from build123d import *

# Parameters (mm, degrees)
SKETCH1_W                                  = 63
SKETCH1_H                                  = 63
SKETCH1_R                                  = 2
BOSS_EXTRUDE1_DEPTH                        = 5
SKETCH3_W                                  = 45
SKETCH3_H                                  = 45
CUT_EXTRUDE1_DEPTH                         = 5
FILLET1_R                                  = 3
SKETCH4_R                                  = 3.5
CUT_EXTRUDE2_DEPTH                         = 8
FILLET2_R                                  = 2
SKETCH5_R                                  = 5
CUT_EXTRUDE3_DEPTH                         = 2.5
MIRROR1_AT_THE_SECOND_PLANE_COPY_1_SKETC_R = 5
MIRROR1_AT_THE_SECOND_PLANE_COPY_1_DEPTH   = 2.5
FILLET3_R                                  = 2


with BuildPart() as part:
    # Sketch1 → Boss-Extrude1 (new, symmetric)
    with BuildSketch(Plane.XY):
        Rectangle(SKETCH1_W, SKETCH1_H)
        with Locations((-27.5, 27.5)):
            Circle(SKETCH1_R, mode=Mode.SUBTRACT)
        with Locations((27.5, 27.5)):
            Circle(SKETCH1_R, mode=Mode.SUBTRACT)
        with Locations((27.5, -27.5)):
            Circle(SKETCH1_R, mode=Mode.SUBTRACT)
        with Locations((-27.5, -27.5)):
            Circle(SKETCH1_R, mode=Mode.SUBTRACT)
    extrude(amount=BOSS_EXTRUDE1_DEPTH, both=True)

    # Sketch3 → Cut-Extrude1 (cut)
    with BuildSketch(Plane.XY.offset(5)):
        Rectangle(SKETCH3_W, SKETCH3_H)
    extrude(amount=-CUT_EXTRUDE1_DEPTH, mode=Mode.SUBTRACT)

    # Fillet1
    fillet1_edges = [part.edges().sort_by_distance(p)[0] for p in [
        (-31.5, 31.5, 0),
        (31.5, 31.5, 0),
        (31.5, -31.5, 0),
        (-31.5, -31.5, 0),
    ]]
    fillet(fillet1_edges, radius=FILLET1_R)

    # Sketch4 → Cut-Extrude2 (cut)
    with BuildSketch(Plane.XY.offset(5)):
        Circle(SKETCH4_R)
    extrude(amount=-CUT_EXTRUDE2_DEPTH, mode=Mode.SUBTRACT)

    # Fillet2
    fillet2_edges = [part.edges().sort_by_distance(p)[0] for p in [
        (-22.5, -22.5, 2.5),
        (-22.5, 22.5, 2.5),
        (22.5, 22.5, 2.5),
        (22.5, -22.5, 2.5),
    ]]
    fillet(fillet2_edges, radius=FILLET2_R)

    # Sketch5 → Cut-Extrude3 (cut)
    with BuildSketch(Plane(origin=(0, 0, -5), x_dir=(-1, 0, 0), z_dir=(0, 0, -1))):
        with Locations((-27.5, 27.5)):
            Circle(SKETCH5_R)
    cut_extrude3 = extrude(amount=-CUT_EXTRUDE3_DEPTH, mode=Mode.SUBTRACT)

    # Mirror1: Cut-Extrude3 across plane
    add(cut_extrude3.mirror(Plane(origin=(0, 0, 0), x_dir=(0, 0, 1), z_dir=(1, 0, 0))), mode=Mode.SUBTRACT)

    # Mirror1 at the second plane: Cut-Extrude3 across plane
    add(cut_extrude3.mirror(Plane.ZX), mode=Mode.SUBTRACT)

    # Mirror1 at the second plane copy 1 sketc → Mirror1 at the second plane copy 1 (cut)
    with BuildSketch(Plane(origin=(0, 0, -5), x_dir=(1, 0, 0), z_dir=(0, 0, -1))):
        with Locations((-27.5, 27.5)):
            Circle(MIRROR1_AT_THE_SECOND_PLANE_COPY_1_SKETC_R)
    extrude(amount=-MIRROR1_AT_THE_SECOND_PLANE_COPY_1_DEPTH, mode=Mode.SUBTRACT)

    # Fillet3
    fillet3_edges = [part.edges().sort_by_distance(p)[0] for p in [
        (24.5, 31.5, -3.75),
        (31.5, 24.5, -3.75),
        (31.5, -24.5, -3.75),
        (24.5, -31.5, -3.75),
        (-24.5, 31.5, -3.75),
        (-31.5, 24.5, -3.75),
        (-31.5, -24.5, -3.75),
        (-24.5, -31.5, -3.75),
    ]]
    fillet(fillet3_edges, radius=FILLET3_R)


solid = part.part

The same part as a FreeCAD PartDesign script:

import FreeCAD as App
import Part
import Sketcher

V = App.Vector
Q = App.Units.Quantity


def edges_at(feature, points):
    """Names of the edges that pass closest to the given points."""
    edges = feature.Shape.Edges
    near = lambda p: min(range(len(edges)), key=lambda i: edges[i].distToShape(Part.Vertex(*p))[0])
    return sorted({f"Edge{near(p) + 1}" for p in points})


def add_polygon(sketch, points):
    """Adds a closed chain of lines whose ends are joined by coincident constraints."""
    first, n = sketch.GeometryCount, len(points)
    for a, b in zip(points, points[1:] + points[:1]):
        sketch.addGeometry(Part.LineSegment(App.Vector(*a, 0), App.Vector(*b, 0)), False)
    for i in range(n):
        sketch.addConstraint(Sketcher.Constraint("Coincident", first + i, 2, first + (i + 1) % n, 1))

doc = App.newDocument("Part")
body = doc.addObject("PartDesign::Body", "Body")

# Sketch on XY plane
sketch1 = body.newObject("Sketcher::SketchObject", "Sketch")
sketch1.AttachmentSupport = (doc.getObject("XY_Plane"), [""])
sketch1.MapMode = "FlatFace"
add_polygon(sketch1, [(-31.5, 31.5), (-31.5, -31.5), (31.5, -31.5), (31.5, 31.5)])  # lines 0-3
sketch1.addGeometry(Part.Circle(V(-27.5, -27.5, 0), V(0, 0, 1), 2), False)  # 4
sketch1.addGeometry(Part.Circle(V(27.5, -27.5, 0), V(0, 0, 1), 2), False)  # 5
sketch1.addGeometry(Part.Circle(V(-27.5, 27.5, 0), V(0, 0, 1), 2), False)  # 6
sketch1.addGeometry(Part.Circle(V(27.5, 27.5, 0), V(0, 0, 1), 2), False)  # 7
sketch1.addConstraint([
    Sketcher.Constraint("Vertical", 0),
    Sketcher.Constraint("Horizontal", 1),
    Sketcher.Constraint("Vertical", 2),
    Sketcher.Constraint("Horizontal", 3),
    Sketcher.Constraint("Equal", 4, 5),
    Sketcher.Constraint("Equal", 5, 6),
    Sketcher.Constraint("Equal", 6, 7),
    Sketcher.Constraint("Symmetric", 5, 3, 6, 3, -1, 1),
    Sketcher.Constraint("Symmetric", 4, 3, 7, 3, -1, 1),
    Sketcher.Constraint("Symmetric", 0, 2, 2, 2, -1, 1),
    Sketcher.Constraint("Symmetric", 4, 3, 5, 3, -2),
    Sketcher.Constraint("Equal", 3, 0),
    Sketcher.Constraint("Diameter", 4, Q("4 mm")),
    Sketcher.Constraint("DistanceX", 1, 1, 1, 2, Q("63 mm")),
    Sketcher.Constraint("DistanceX", 4, 3, 5, 3, Q("55 mm")),
    Sketcher.Constraint("DistanceY", 4, 3, 6, 3, Q("55 mm")),
])
pad1 = body.newObject("PartDesign::Pad", "Pad")
pad1.Profile = sketch1
pad1.Length = 10
pad1.Midplane = True

# Sketch on XY plane
sketch2 = body.newObject("Sketcher::SketchObject", "Sketch001")
sketch2.AttachmentSupport = (doc.getObject("XY_Plane"), [""])
sketch2.MapMode = "FlatFace"
sketch2.AttachmentOffset = App.Placement(V(0, 0, 5), App.Rotation())
add_polygon(sketch2, [(-22, 22), (-22, -22), (22, -22), (22, 22)])  # lines 0-3
sketch2.addConstraint([
    Sketcher.Constraint("Vertical", 0),
    Sketcher.Constraint("Horizontal", 1),
    Sketcher.Constraint("Vertical", 2),
    Sketcher.Constraint("Horizontal", 3),
    Sketcher.Constraint("Symmetric", 0, 2, 2, 2, -1, 1),
    Sketcher.Constraint("Equal", 3, 0),
    Sketcher.Constraint("DistanceX", 1, 1, 1, 2, Q("45 mm")),
])
pocket1 = body.newObject("PartDesign::Pocket", "Pocket")
pocket1.Profile = sketch2
pocket1.Length = 5
doc.recompute()

fillet = body.newObject("PartDesign::Fillet", "Fillet")
fillet.Base = (pocket1, edges_at(pocket1, [
    (-31.5, 31.5, 0),
    (31.5, 31.5, 0),
    (31.5, -31.5, 0),
    (-31.5, -31.5, 0),
]))
fillet.Radius = 3

# Sketch on XY plane
sketch3 = body.newObject("Sketcher::SketchObject", "Sketch002")
sketch3.AttachmentSupport = (doc.getObject("XY_Plane"), [""])
sketch3.MapMode = "FlatFace"
sketch3.AttachmentOffset = App.Placement(V(0, 0, 5), App.Rotation())
sketch3.addGeometry(Part.Circle(V(0, 0, 0), V(0, 0, 1), 3.5), False)
sketch3.addConstraint([
    Sketcher.Constraint("Coincident", 0, 3, -1, 1),
    Sketcher.Constraint("Diameter", 0, Q("7 mm")),
])
pocket2 = body.newObject("PartDesign::Pocket", "Pocket001")
pocket2.Profile = sketch3
pocket2.Length = 8
doc.recompute()

fillet2 = body.newObject("PartDesign::Fillet", "Fillet001")
fillet2.Base = (pocket2, edges_at(pocket2, [
    (-22.5, -22.5, 2.5),
    (-22.5, 22.5, 2.5),
    (22.5, 22.5, 2.5),
    (22.5, -22.5, 2.5),
]))
fillet2.Radius = 2

# Sketch on XY plane
sketch4 = body.newObject("Sketcher::SketchObject", "Sketch003")
sketch4.AttachmentSupport = (doc.getObject("XY_Plane"), [""])
sketch4.MapMode = "FlatFace"
sketch4.AttachmentOffset = App.Placement(V(0, 0, -5), App.Rotation())
sketch4.addGeometry(Part.Circle(V(28, 28, 0), V(0, 0, 1), 5), False)
sketch4.addConstraint([
    Sketcher.Constraint("Diameter", 0, Q("10 mm")),
    Sketcher.Constraint("DistanceX", -1, 1, 0, 3, Q("27.5 mm")),
    Sketcher.Constraint("DistanceY", -1, 1, 0, 3, Q("27.5 mm")),
])
pocket3 = body.newObject("PartDesign::Pocket", "Pocket002")
pocket3.Profile = sketch4
pocket3.Length = 2.5
pocket3.Reversed = True
doc.recompute()

mirrored = body.newObject("PartDesign::Mirrored", "Mirrored")
mirrored.Originals = [pocket3]
mirrored.MirrorPlane = (doc.getObject("YZ_Plane"), [""])
body.Tip = mirrored
doc.recompute()

mirrored2 = body.newObject("PartDesign::Mirrored", "Mirrored001")
mirrored2.Originals = [pocket3]
mirrored2.MirrorPlane = (doc.getObject("XZ_Plane"), [""])
body.Tip = mirrored2

# Sketch on XY plane
sketch5 = body.newObject("Sketcher::SketchObject", "Sketch004")
sketch5.AttachmentSupport = (doc.getObject("XY_Plane"), [""])
sketch5.MapMode = "FlatFace"
sketch5.AttachmentOffset = App.Placement(V(0, 0, -5), App.Rotation())
sketch5.addGeometry(Part.Circle(V(-28, -28, 0), V(0, 0, 1), 5), False)
sketch5.addConstraint([
    Sketcher.Constraint("Diameter", 0, Q("10 mm")),
    Sketcher.Constraint("DistanceX", 0, 3, -1, 1, Q("27.5 mm")),
    Sketcher.Constraint("DistanceY", 0, 3, -1, 1, Q("27.5 mm")),
])
pocket4 = body.newObject("PartDesign::Pocket", "Pocket003")
pocket4.Profile = sketch5
pocket4.Length = 2.5
pocket4.Reversed = True
doc.recompute()

fillet3 = body.newObject("PartDesign::Fillet", "Fillet002")
fillet3.Base = (pocket4, edges_at(pocket4, [
    (24.5, 31.5, -3.75),
    (31.5, 24.5, -3.75),
    (31.5, -24.5, -3.75),
    (24.5, -31.5, -3.75),
    (-24.5, 31.5, -3.75),
    (-31.5, 24.5, -3.75),
    (-31.5, -24.5, -3.75),
    (-24.5, -31.5, -3.75),
]))
fillet3.Radius = 2

doc.recompute()
